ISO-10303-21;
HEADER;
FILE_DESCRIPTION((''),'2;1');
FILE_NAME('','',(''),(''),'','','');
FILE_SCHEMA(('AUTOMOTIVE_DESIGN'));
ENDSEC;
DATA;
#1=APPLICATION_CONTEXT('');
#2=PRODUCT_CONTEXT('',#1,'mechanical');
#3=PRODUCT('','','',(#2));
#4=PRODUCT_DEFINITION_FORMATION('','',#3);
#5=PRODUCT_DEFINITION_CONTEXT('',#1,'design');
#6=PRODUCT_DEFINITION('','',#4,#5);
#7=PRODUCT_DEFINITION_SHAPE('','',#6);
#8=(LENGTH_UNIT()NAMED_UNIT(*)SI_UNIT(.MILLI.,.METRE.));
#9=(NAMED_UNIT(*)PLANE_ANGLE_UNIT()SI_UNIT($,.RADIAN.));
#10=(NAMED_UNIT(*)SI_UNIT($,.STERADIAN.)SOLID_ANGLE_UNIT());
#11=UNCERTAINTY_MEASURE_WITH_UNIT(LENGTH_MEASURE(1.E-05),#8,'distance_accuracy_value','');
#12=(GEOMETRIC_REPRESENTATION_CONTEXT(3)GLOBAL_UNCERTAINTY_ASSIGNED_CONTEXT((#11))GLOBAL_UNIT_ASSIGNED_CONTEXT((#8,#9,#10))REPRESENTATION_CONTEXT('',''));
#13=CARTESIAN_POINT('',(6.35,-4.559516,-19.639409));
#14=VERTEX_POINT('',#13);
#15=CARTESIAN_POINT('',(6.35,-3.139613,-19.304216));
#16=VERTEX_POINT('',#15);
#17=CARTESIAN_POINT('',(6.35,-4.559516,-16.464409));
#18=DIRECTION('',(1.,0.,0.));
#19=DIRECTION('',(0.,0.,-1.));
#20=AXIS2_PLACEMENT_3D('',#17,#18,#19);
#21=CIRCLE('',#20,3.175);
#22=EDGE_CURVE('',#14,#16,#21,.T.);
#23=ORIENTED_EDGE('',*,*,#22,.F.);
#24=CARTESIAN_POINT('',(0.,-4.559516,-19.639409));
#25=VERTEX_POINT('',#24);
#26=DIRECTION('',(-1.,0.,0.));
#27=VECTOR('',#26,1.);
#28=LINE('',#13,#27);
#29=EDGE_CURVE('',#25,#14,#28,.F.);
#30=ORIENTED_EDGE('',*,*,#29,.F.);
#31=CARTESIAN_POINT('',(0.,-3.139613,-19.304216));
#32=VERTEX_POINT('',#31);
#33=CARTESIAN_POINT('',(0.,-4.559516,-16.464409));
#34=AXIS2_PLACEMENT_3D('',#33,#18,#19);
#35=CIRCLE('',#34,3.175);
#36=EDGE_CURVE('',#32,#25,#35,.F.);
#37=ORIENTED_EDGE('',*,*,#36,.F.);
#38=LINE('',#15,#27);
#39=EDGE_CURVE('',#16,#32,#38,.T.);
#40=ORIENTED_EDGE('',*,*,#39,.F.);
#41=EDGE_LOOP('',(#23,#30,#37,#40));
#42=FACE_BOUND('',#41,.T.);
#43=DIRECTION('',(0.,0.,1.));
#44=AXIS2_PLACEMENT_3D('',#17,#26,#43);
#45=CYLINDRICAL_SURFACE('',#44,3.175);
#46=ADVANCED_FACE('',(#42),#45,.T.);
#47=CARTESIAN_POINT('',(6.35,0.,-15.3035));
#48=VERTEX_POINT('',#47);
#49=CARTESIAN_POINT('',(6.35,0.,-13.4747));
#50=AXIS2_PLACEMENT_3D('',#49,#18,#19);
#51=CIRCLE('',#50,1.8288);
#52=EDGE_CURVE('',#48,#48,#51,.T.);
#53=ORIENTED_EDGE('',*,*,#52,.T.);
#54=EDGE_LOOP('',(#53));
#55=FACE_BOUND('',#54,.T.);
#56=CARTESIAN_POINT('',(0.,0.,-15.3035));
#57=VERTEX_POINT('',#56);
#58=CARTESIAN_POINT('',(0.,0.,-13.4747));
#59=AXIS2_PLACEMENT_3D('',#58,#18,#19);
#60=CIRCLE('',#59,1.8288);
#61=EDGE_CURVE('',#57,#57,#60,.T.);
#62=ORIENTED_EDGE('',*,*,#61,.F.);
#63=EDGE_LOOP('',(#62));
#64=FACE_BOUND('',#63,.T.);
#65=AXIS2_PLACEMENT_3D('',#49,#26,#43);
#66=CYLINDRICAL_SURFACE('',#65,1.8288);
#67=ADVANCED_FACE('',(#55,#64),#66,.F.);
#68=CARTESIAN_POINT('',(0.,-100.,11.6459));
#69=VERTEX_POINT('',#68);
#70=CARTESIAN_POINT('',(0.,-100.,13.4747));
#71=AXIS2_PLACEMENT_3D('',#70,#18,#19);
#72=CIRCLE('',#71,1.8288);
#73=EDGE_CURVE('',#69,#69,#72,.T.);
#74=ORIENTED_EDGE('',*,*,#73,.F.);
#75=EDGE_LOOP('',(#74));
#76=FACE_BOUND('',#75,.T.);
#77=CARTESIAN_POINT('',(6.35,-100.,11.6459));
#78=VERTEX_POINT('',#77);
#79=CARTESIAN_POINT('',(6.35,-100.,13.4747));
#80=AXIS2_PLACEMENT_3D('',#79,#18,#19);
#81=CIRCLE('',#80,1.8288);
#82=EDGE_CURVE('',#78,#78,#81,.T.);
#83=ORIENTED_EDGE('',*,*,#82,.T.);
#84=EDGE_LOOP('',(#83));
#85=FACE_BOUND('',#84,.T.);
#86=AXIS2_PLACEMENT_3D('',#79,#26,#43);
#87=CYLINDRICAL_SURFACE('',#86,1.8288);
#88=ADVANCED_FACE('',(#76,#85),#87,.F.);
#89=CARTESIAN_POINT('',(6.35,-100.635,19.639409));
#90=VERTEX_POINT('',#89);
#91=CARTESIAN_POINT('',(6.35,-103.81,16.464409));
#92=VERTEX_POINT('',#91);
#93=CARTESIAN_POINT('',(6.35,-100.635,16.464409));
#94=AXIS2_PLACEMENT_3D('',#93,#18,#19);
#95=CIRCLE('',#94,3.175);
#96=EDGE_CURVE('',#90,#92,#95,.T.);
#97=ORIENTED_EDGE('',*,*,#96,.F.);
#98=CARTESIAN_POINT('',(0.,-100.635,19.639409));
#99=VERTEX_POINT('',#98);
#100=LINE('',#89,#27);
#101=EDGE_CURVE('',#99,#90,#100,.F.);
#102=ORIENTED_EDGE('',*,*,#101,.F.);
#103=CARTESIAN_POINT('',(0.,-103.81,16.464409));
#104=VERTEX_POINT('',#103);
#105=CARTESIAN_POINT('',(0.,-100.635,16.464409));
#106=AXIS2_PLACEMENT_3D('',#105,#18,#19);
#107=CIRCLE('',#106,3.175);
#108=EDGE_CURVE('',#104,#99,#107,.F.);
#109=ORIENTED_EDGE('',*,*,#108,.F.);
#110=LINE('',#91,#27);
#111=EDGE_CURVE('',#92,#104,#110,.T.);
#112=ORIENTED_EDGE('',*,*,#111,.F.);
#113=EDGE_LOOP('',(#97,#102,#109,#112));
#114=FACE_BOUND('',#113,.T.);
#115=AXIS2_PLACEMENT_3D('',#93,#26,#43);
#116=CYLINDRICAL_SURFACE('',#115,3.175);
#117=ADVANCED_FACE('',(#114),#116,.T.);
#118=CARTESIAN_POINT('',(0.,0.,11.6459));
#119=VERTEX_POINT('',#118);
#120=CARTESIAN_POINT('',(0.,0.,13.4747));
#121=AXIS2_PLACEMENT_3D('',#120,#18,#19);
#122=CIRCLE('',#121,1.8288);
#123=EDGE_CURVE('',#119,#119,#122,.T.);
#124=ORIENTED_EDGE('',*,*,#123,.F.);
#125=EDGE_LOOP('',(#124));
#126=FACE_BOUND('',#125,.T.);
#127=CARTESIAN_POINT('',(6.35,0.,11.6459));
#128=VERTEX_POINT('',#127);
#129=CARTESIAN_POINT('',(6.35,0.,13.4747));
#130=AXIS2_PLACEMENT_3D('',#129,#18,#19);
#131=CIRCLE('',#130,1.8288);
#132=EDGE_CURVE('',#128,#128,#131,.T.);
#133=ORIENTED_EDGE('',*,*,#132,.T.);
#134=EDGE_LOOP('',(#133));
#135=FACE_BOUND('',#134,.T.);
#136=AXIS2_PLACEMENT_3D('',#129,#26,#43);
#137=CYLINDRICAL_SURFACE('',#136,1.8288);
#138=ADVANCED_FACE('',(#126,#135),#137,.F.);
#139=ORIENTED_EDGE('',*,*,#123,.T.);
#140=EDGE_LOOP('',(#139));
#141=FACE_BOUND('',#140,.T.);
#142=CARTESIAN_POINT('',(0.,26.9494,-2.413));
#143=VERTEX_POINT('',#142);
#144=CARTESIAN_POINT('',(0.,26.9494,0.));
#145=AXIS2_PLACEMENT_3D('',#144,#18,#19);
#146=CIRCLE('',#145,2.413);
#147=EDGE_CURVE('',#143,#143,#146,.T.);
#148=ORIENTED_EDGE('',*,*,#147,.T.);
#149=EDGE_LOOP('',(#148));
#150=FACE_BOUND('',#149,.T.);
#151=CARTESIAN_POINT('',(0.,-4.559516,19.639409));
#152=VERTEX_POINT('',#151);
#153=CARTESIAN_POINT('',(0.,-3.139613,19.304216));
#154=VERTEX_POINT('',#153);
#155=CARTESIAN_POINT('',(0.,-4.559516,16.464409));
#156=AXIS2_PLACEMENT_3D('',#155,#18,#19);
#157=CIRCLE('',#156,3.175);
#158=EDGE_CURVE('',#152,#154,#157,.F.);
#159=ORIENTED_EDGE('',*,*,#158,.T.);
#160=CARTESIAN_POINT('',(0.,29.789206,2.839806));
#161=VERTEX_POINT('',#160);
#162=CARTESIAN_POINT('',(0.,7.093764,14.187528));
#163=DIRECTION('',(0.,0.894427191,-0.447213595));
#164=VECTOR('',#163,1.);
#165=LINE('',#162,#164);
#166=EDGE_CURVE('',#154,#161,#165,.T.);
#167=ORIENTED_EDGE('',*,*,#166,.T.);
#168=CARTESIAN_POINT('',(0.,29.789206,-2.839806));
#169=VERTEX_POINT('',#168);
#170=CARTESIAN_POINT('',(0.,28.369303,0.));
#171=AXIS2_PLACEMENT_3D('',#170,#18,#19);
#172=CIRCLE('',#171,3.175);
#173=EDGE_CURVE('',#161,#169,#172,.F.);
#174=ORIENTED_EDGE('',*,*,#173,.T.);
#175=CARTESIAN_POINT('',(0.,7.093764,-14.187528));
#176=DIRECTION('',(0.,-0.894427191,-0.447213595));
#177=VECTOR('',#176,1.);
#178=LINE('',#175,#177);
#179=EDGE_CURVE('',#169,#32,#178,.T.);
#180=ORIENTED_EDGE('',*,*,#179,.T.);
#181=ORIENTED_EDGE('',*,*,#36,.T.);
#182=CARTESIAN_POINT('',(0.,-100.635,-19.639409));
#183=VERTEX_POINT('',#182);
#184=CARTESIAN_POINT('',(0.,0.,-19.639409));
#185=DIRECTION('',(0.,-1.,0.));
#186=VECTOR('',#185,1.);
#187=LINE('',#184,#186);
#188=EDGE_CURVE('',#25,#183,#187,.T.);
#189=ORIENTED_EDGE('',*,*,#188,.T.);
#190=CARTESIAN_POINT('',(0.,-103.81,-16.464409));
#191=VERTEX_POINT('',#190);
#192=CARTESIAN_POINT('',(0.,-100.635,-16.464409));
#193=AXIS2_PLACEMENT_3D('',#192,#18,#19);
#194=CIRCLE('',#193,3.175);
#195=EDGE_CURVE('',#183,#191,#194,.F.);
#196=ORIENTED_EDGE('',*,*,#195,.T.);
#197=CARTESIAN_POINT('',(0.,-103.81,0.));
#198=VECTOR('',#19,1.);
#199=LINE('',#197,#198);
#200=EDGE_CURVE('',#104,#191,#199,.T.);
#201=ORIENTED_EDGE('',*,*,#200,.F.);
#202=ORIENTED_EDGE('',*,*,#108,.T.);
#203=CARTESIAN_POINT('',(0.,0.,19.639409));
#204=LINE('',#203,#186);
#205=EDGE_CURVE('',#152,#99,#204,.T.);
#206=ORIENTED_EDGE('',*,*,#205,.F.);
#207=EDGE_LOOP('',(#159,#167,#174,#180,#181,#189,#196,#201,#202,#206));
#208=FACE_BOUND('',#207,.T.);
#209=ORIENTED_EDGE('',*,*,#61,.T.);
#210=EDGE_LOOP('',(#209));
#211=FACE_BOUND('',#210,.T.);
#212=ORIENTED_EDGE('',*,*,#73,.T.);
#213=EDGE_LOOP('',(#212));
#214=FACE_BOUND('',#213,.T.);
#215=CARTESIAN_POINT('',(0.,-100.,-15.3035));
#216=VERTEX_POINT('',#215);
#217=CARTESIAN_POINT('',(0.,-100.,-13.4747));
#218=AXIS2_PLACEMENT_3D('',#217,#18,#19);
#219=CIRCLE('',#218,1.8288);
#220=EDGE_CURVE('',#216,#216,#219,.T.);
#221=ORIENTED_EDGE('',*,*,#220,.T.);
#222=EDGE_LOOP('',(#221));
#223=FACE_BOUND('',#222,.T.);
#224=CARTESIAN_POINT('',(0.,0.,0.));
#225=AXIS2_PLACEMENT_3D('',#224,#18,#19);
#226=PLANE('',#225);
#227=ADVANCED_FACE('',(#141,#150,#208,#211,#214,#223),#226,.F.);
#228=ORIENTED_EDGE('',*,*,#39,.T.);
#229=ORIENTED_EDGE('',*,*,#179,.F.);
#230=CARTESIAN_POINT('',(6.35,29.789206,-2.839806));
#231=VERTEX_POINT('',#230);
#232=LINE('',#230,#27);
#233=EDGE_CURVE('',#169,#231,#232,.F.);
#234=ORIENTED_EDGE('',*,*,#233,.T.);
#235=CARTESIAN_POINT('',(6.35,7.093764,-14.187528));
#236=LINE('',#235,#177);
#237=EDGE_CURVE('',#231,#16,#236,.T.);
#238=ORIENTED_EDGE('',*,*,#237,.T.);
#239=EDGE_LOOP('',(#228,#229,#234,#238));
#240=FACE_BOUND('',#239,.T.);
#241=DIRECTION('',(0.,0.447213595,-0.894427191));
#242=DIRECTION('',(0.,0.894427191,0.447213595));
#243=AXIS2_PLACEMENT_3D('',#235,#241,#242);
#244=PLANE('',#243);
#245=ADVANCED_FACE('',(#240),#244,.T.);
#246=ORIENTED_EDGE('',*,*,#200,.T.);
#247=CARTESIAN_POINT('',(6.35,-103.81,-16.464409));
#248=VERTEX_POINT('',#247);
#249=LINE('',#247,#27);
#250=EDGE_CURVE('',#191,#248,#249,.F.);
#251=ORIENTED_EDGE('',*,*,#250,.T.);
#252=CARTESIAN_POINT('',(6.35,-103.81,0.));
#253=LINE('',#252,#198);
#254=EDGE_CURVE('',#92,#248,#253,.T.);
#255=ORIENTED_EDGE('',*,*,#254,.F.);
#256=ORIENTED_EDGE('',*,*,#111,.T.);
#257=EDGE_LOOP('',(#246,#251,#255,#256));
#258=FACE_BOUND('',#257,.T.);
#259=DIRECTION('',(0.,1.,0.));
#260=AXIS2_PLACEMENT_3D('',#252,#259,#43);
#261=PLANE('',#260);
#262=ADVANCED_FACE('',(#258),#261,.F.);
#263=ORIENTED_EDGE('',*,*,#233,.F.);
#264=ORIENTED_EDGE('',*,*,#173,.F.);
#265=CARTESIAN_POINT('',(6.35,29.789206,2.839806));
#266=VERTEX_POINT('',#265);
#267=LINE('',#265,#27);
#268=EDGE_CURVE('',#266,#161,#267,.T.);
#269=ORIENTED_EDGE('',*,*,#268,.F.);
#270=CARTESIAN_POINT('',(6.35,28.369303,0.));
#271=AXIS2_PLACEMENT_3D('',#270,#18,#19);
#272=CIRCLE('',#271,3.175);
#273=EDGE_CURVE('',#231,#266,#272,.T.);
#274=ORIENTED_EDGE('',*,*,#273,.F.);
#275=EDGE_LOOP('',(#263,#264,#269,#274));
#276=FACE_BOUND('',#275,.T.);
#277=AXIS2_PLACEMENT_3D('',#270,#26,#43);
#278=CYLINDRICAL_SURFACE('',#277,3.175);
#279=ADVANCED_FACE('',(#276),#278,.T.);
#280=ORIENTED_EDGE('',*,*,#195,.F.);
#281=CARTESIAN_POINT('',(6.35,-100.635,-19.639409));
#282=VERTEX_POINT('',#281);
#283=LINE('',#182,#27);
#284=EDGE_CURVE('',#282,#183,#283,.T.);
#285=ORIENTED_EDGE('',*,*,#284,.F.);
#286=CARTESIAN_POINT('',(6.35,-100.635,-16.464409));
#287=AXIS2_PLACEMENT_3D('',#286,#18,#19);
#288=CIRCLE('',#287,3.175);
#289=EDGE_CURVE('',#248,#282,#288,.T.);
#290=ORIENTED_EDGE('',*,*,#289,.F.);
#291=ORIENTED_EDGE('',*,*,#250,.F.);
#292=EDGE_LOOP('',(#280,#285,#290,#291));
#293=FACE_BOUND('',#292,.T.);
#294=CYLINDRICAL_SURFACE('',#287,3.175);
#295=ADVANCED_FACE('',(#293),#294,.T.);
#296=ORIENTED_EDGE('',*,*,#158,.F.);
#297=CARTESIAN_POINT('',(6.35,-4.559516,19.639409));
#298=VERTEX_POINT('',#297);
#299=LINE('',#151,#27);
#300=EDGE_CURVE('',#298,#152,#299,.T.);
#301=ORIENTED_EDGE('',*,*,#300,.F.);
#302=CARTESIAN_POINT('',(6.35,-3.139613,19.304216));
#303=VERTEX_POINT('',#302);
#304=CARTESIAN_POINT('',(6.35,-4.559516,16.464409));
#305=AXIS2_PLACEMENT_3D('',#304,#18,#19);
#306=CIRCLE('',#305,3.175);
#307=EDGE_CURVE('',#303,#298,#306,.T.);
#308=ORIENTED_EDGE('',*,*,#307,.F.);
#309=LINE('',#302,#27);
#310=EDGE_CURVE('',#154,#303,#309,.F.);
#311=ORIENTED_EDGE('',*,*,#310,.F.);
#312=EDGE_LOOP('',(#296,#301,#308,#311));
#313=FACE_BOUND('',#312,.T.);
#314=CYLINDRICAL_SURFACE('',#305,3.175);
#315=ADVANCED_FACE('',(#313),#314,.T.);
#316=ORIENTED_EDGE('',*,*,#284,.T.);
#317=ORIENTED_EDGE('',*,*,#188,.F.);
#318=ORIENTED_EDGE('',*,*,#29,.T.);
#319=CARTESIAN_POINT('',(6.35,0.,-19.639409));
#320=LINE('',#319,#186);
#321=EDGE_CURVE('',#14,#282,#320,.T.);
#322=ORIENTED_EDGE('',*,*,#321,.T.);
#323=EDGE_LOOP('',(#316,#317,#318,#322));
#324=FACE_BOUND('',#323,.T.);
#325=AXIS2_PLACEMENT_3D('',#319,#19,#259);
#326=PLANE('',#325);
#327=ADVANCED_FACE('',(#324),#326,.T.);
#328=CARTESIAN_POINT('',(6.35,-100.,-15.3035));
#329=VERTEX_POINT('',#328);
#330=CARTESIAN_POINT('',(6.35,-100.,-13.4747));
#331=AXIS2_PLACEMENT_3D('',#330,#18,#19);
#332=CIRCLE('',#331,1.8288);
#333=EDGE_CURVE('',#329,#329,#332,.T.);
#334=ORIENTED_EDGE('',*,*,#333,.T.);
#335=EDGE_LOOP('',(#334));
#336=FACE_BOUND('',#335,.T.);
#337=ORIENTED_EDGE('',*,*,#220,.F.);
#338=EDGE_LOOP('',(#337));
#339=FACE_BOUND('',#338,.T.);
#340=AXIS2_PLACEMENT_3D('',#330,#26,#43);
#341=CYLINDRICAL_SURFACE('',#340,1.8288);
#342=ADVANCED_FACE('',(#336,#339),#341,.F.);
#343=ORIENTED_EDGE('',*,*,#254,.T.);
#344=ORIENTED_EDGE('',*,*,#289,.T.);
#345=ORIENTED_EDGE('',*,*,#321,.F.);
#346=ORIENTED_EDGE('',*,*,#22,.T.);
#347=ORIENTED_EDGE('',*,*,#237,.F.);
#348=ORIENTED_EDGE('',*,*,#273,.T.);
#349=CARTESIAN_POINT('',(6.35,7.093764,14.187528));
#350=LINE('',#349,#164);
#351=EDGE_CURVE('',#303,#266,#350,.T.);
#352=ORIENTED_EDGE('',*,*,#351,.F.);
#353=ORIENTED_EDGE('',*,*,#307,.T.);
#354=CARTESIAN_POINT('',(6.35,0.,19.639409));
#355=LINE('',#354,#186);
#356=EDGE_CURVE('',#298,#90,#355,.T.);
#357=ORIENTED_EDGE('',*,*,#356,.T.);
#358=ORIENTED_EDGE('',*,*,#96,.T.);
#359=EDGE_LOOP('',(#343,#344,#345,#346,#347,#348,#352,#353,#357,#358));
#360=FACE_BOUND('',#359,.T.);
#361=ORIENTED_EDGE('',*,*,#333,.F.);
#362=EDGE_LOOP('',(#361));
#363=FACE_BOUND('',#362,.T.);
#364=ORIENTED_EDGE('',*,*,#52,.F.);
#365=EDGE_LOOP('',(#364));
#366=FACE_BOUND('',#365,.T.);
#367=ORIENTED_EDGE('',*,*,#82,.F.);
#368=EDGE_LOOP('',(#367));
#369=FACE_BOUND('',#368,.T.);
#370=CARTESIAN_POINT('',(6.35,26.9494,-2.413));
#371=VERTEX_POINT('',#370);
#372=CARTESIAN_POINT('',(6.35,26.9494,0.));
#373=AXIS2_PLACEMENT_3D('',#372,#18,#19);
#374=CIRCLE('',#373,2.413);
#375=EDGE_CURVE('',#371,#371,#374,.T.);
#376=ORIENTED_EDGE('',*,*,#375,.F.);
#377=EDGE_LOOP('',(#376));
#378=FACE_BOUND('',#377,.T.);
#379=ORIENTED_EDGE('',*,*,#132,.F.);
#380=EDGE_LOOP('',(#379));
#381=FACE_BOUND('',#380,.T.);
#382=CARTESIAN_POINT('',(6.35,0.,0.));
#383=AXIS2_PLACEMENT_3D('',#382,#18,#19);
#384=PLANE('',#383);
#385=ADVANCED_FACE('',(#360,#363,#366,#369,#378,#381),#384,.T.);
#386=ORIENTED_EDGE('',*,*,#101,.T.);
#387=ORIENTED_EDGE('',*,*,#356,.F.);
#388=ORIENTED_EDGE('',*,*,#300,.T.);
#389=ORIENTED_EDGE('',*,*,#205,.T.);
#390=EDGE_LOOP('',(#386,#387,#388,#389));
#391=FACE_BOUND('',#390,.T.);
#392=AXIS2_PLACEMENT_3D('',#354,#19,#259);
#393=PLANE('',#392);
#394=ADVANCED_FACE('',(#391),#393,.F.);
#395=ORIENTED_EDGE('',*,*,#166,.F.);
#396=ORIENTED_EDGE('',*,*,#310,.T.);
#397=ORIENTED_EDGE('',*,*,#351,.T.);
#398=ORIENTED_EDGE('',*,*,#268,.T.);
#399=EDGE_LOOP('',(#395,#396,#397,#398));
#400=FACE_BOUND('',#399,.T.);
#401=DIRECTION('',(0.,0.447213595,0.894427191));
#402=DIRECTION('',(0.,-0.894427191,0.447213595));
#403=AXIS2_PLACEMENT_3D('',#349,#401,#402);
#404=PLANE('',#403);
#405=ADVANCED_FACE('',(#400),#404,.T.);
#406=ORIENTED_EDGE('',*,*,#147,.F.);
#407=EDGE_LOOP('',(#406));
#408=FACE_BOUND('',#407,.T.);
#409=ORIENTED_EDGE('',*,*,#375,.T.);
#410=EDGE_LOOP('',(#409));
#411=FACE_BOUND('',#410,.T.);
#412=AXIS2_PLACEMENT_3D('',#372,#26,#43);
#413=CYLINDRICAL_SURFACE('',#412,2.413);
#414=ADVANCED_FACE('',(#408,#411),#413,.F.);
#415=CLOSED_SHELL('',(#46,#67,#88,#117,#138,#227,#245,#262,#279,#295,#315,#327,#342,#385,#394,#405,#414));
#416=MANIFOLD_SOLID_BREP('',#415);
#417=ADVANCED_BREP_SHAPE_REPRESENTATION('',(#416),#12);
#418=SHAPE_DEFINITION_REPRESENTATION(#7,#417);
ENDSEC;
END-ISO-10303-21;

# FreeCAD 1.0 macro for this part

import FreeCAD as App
import Part
import Sketcher
Q = App.Units.Quantity


def edges_at(feature, points):
    """Names of the edges that pass closest to the given points."""
    edges = feature.Shape.Edges
    near = lambda p: min(range(len(edges)), key=lambda i: edges[i].distToShape(Part.Vertex(*p))[0])
    return sorted({f"Edge{near(p) + 1}" for p in points})

doc = App.newDocument("Part")
body = doc.addObject("PartDesign::Body", "Body")

# Sketch on YZ plane
sketch1 = body.newObject("Sketcher::SketchObject", "Sketch")
sketch1.AttachmentSupport = (doc.getObject("YZ_Plane"), [""])
sketch1.MapMode = "FlatFace"
sketch1.addGeometry([
    Part.LineSegment(App.Vector(-3.8, 19.6, 0), App.Vector(-103.8, 19.6, 0)),  # 0
    Part.LineSegment(App.Vector(-103.8, 19.6, 0), App.Vector(-103.8, -19.6, 0)),  # 1
    Part.LineSegment(App.Vector(-103.8, -19.6, 0), App.Vector(-3.8, -19.6, 0)),  # 2
    Part.LineSegment(App.Vector(-3.8, -19.6, 0), App.Vector(35.5, 0, 0)),  # 3
    Part.LineSegment(App.Vector(35.5, 0, 0), App.Vector(-3.8, 19.6, 0)),  # 4
    Part.Circle(App.Vector(-100, 13.5, 0), App.Vector(0, 0, 1), 1.8),  # 5
    Part.Circle(App.Vector(-100, -13.5, 0), App.Vector(0, 0, 1), 1.8),  # 6
    Part.Circle(App.Vector(26.9, 0, 0), App.Vector(0, 0, 1), 2.4),  # 7
    Part.Circle(App.Vector(0, -13.5, 0), App.Vector(0, 0, 1), 1.8),  # 8
    Part.Circle(App.Vector(0, 13.5, 0), App.Vector(0, 0, 1), 1.8),  # 9
], False)
sketch1.addConstraint([
    Sketcher.Constraint("Coincident", 0, 2, 1, 1),
    Sketcher.Constraint("Coincident", 1, 2, 2, 1),
    Sketcher.Constraint("Coincident", 2, 2, 3, 1),
    Sketcher.Constraint("Coincident", 3, 2, 4, 1),
    Sketcher.Constraint("Coincident", 4, 2, 0, 1),
    Sketcher.Constraint("Horizontal", 0),
    Sketcher.Constraint("Vertical", 1),
    Sketcher.Constraint("Horizontal", 2),
    Sketcher.Constraint("Equal", 5, 6),
    Sketcher.Constraint("Equal", 6, 8),
    Sketcher.Constraint("Equal", 8, 9),
    Sketcher.Constraint("Symmetric", 8, 3, 9, 3, -1, 1),
    Sketcher.Constraint("Symmetric", 5, 3, 6, 3, -1),
    Sketcher.Constraint("Symmetric", 2, 2, 4, 2, -1),
    Sketcher.Constraint("PointOnObject", 7, 3, -1),
    Sketcher.Constraint("PointOnObject", 8, 3, -2),
    Sketcher.Constraint("PointOnObject", 3, 2, -1),
    Sketcher.Constraint("Horizontal", 6, 3, 8, 3),
    Sketcher.Constraint("Diameter", 7, Q("0.19 in")),
    Sketcher.Constraint("Diameter", 5, Q("0.144 in")),
    Sketcher.Constraint("DistanceX", 2, 2, -1, 1, Q("0.15 in")),
    Sketcher.Constraint("DistanceX", 0, 2, 5, 3, Q("0.15 in")),
    Sketcher.Constraint("DistanceX", -1, 1, 7, 3, Q("1.061 in")),
    Sketcher.Constraint("DistanceY", 6, 3, 5, 3, Q("1.061 in")),
    Sketcher.Constraint("DistanceX", 0, 2, 0, 1, Q("100 mm")),
    Sketcher.Constraint("DistanceY", 1, 2, 1, 1, Q("39.278819 mm")),
    Sketcher.Constraint("DistanceX", -1, 1, 3, 2, Q("35.468819 mm")),
])
pad1 = body.newObject("PartDesign::Pad", "Pad")
pad1.Profile = sketch1
pad1.Length = Q("0.25 in")
doc.recompute()

fillet = body.newObject("PartDesign::Fillet", "Fillet")
fillet.Base = (pad1, edges_at(pad1, [
    (3.175, -3.81, 19.639),
    (3.175, 35.469, 0),
    (3.175, -3.81, -19.639),
    (3.175, -103.81, -19.639),
    (3.175, -103.81, 19.639),
]))
fillet.Radius = Q("0.125 in")

doc.recompute()
